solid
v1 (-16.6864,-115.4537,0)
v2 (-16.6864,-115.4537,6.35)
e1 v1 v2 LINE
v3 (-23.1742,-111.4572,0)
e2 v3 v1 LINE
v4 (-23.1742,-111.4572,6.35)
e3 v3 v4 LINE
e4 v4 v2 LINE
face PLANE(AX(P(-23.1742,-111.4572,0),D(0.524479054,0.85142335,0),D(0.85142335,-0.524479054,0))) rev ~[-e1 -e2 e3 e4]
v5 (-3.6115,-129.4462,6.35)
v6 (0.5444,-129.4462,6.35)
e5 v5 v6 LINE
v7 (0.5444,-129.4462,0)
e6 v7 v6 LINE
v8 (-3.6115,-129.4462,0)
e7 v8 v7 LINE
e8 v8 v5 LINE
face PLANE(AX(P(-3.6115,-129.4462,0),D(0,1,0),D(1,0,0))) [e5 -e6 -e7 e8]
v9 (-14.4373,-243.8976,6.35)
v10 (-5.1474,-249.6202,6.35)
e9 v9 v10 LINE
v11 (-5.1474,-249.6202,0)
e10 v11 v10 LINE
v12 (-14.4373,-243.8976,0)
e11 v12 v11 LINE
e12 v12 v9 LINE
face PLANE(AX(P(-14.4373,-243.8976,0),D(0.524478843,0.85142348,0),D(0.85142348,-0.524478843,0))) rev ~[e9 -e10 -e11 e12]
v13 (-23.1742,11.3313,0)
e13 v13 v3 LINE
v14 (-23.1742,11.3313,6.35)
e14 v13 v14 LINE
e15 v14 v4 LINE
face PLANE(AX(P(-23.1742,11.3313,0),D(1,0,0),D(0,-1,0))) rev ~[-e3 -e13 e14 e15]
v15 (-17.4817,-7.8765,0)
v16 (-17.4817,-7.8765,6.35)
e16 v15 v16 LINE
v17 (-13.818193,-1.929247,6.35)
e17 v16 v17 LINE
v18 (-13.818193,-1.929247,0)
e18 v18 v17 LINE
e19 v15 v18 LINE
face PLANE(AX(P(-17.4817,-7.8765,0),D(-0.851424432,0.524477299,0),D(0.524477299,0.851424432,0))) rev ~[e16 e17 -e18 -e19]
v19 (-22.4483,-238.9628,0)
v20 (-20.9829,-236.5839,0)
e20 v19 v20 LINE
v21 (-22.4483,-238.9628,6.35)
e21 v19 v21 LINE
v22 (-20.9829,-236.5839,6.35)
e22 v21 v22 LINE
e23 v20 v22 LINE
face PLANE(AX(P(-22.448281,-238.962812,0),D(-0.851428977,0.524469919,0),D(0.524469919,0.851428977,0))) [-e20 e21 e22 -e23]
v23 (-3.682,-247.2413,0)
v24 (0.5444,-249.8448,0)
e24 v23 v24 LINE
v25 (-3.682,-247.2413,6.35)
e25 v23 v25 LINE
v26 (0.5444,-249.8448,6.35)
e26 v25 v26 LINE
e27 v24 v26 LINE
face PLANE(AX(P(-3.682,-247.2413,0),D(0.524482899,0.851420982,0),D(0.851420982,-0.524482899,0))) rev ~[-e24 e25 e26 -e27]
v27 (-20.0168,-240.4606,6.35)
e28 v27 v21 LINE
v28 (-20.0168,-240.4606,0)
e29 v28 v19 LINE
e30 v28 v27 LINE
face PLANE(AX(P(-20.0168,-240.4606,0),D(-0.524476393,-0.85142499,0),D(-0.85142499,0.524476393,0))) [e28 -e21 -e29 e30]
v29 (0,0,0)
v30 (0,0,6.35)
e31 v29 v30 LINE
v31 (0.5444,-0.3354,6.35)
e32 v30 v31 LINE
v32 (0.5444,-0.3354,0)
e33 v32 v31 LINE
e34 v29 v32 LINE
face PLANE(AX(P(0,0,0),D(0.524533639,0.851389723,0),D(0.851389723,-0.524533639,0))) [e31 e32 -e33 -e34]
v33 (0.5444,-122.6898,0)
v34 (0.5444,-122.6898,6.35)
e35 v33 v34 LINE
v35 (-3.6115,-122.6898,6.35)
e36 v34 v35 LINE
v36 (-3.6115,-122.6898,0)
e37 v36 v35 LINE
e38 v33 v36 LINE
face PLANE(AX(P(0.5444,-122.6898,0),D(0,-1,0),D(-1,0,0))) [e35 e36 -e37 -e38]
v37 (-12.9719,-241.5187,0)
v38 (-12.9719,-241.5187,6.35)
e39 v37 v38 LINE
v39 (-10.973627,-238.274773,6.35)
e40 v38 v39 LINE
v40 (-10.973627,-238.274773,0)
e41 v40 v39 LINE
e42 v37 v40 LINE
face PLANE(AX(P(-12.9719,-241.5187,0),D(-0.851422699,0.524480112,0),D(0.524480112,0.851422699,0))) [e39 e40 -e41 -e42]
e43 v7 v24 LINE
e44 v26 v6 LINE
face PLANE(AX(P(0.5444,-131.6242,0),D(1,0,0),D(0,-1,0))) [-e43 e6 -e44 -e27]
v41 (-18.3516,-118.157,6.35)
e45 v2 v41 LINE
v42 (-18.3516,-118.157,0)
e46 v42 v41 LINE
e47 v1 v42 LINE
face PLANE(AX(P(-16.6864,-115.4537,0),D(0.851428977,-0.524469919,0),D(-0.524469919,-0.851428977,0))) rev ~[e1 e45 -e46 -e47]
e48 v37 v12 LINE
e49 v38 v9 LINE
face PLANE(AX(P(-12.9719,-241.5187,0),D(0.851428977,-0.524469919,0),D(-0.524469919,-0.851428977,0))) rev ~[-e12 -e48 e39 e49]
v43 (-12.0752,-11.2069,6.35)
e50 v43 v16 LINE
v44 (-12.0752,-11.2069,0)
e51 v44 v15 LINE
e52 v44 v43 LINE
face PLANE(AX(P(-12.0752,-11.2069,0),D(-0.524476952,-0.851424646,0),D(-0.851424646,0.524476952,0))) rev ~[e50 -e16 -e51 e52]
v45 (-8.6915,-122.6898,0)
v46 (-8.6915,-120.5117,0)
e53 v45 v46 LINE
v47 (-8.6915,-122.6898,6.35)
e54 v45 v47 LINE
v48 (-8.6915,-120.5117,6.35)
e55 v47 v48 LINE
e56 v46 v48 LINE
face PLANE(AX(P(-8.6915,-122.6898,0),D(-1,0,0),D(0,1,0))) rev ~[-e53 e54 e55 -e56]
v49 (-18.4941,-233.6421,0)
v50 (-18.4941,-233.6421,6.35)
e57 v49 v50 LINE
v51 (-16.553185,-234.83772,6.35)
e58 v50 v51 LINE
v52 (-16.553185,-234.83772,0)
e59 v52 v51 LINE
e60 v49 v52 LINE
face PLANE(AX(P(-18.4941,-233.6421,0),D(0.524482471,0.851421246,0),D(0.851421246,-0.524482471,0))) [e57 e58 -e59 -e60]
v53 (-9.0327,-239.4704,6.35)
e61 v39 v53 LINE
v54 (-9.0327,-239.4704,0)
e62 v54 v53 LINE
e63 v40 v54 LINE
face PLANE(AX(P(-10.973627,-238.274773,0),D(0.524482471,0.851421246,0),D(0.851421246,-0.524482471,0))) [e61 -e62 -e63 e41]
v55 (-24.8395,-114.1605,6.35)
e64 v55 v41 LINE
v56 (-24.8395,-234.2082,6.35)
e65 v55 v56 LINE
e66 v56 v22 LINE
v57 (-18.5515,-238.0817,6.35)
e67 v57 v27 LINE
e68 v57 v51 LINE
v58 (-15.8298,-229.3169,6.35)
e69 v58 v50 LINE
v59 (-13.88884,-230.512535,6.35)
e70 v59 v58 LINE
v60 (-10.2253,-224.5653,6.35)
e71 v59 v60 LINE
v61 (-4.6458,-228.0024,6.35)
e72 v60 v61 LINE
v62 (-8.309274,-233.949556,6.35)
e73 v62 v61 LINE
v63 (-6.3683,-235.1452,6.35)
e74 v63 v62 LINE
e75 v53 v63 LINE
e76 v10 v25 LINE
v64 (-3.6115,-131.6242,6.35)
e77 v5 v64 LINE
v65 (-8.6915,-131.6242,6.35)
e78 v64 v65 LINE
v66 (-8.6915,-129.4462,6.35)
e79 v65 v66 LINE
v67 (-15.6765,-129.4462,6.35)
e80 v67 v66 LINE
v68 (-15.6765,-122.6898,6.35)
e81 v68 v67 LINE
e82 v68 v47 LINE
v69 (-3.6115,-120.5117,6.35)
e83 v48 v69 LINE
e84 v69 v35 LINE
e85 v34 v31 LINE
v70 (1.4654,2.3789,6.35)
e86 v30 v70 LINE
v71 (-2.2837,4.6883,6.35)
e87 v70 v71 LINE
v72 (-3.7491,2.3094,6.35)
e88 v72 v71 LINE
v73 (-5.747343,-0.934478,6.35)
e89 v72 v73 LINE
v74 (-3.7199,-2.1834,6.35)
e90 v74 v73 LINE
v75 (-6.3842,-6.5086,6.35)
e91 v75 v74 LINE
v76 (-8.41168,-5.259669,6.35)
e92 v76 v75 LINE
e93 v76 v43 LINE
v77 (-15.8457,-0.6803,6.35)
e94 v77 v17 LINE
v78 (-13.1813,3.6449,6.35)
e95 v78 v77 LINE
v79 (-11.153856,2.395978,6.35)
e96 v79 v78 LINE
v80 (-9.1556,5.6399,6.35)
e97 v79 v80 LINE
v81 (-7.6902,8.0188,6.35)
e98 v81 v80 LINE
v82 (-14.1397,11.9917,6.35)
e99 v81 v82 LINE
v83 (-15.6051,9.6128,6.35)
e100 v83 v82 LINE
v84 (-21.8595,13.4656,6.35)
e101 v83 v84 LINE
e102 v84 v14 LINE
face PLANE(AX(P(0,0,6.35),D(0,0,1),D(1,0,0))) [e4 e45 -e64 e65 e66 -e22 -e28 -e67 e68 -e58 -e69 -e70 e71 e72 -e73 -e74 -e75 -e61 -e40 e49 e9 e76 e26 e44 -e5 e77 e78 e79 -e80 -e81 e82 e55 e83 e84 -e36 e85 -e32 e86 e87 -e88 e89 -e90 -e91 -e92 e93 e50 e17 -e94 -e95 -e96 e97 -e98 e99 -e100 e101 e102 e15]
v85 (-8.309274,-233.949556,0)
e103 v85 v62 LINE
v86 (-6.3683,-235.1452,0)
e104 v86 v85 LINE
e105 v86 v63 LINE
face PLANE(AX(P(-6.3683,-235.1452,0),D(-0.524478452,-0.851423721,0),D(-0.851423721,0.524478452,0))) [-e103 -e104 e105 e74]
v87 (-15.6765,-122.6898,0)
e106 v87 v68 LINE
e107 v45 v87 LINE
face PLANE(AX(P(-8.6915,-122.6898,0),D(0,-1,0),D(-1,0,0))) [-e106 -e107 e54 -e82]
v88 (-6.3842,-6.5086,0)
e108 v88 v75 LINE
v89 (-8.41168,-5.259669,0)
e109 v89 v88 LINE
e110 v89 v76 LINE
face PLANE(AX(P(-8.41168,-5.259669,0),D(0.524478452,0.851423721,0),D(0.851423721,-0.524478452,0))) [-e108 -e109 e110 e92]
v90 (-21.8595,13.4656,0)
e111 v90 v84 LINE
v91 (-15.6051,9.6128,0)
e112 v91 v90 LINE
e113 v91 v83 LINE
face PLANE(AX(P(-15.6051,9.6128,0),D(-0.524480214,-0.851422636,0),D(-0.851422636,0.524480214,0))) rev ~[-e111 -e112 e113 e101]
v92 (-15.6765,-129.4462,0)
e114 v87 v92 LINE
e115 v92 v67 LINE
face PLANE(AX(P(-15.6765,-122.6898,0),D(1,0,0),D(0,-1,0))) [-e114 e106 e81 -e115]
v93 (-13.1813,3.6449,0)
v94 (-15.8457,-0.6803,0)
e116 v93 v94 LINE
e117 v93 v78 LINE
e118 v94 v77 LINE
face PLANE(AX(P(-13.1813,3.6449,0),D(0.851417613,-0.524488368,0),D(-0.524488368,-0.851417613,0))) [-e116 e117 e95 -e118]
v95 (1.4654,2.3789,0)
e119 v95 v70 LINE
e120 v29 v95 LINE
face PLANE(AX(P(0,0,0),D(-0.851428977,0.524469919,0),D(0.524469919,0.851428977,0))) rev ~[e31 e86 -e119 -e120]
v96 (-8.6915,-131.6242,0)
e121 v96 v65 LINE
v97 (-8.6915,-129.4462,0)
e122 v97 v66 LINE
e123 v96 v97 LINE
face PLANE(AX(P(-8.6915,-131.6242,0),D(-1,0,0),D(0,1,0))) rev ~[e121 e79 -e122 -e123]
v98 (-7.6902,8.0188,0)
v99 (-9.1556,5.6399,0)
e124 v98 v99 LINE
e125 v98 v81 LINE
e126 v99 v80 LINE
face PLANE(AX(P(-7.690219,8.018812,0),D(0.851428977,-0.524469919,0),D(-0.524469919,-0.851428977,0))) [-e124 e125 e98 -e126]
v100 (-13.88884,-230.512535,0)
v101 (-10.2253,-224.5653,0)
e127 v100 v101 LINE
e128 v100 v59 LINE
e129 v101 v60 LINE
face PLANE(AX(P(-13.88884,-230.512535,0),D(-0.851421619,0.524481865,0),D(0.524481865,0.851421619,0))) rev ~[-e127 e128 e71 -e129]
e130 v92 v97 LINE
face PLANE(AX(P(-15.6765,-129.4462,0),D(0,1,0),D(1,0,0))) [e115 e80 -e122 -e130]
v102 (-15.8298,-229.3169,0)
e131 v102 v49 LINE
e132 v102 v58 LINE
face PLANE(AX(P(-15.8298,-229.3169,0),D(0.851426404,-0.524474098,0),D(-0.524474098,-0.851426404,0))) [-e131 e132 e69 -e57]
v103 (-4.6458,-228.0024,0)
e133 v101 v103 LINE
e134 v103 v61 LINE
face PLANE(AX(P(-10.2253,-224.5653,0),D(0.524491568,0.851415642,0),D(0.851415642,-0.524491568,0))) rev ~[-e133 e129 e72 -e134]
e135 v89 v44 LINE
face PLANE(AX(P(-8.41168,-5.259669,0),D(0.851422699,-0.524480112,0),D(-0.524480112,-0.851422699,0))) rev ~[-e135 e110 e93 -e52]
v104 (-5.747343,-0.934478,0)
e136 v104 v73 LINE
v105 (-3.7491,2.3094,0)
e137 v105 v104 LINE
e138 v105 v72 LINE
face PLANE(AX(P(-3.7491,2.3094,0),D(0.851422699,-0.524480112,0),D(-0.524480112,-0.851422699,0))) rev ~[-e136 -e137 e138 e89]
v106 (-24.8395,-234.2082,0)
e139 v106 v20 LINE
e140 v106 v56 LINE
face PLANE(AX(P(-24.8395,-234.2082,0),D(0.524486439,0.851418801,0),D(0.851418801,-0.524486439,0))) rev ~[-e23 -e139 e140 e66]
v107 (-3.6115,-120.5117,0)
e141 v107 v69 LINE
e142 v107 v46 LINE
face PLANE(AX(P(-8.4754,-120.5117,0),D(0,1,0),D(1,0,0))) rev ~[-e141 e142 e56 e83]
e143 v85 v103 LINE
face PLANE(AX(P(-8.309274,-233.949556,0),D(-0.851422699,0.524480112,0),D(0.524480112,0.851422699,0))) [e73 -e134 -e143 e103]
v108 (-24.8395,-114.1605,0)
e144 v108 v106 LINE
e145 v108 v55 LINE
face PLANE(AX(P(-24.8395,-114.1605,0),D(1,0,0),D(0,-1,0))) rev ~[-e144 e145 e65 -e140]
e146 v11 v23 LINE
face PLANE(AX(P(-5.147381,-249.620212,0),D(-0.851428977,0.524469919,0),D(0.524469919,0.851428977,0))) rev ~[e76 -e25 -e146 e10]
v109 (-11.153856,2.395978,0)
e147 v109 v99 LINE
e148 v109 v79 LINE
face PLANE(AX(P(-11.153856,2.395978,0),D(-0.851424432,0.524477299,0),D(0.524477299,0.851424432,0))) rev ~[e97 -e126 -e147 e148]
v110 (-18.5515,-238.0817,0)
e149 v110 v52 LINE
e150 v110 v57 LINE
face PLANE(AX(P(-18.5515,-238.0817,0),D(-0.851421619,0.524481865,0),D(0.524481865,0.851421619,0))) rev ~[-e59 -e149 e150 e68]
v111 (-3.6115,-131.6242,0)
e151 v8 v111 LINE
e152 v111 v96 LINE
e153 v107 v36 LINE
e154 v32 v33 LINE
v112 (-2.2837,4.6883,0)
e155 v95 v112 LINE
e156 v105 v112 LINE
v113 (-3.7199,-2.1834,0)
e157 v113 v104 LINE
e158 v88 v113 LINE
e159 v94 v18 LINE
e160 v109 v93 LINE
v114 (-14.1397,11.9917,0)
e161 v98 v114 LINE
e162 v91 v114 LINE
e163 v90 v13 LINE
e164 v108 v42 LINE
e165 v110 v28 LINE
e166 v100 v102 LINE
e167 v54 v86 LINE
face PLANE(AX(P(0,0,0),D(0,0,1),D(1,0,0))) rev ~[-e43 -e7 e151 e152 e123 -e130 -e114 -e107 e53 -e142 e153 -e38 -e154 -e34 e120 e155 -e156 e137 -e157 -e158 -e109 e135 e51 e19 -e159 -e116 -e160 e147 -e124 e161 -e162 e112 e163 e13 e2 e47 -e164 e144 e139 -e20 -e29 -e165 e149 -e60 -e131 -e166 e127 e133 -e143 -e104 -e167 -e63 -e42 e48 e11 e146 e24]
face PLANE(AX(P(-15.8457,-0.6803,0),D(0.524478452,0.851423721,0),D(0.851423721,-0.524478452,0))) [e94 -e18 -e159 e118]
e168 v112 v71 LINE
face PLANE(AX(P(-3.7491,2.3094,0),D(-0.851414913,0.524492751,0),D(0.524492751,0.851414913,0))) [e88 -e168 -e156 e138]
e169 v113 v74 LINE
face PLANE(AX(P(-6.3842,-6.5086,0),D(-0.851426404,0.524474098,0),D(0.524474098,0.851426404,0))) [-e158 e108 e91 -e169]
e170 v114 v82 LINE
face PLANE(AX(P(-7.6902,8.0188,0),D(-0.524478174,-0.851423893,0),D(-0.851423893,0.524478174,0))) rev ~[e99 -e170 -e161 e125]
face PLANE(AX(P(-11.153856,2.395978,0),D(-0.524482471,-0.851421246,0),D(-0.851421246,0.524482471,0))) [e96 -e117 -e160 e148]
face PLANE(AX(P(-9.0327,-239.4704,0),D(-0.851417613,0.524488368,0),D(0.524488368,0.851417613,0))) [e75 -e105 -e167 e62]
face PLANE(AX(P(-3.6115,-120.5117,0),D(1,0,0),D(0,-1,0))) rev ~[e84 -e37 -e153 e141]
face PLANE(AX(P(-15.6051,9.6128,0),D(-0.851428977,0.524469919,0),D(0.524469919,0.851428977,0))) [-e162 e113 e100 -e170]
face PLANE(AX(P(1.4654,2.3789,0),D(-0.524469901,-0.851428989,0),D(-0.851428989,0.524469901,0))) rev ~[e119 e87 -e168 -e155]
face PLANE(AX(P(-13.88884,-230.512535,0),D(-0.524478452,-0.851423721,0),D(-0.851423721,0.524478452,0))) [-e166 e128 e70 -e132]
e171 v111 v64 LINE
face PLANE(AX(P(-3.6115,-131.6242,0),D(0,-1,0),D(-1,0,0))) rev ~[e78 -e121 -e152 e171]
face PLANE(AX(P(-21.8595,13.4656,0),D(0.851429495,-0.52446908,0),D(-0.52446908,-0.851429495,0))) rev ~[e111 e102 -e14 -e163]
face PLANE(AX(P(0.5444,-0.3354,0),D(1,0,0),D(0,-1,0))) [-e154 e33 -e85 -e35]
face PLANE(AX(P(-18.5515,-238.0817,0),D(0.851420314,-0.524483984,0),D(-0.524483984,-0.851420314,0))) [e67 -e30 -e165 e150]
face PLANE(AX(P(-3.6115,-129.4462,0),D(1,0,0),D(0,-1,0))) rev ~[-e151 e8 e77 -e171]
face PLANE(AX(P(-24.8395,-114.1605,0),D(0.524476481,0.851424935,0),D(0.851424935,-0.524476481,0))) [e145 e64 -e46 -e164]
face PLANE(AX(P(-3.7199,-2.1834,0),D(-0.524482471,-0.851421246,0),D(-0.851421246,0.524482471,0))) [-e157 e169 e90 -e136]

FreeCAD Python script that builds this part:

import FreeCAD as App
import Part
import Sketcher
Q = App.Units.Quantity


def add_polygon(sketch, points):
    """Adds a closed chain of lines whose ends are joined by coincident constraints."""
    first, n = sketch.GeometryCount, len(points)
    for a, b in zip(points, points[1:] + points[:1]):
        sketch.addGeometry(Part.LineSegment(App.Vector(*a, 0), App.Vector(*b, 0)), False)
    for i in range(n):
        sketch.addConstraint(Sketcher.Constraint("Coincident", first + i, 2, first + (i + 1) % n, 1))

doc = App.newDocument("Part")
params = doc.addObject("Spreadsheet::Sheet", "Params")
for row, (alias, value) in enumerate([
    ("sketch1_width", "0.2 in"),
    ("sketch1_length", "0.3 in"),
    ("sketch1_length2", "0.2 in"),
    ("sketch1_length3", "0.125 in"),
    ("sketch1_length4", "0.11 in"),
    ("pad1_length", "0.25 in"),
], start=1):
    params.set(f"A{row}", alias)
    params.set(f"B{row}", "=" + value)
    params.setAlias(f"B{row}", alias)

body = doc.addObject("PartDesign::Body", "Body")

# Sketch on XY plane
sketch1 = body.newObject("Sketcher::SketchObject", "Sketch")
sketch1.AttachmentSupport = (doc.getObject("XY_Plane"), [""])
sketch1.MapMode = "FlatFace"
add_polygon(sketch1, [(-7.7, 8), (-14.1, 12), (-15.6, 9.6), (-21.9, 13.5), (-23.2, 11.3), (-23.2, -111.5), (-16.7, -115.5), (-18.4, -118.2), (-24.8, -114.2), (-24.8, -234.2), (-21, -236.6), (-22.4, -239), (-20, -240.5), (-18.6, -238.1), (-16.6, -234.8), (-18.5, -233.6), (-15.8, -229.3), (-13.9, -230.5), (-10.2, -224.6), (-4.6, -228), (-8.3, -233.9), (-6.4, -235.1), (-9, -239.5), (-11, -238.3), (-13, -241.5), (-14.4, -243.9), (-5.1, -249.6), (-3.7, -247.2), (0.5, -249.8), (0.5, -129.4), (-3.6, -129.4), (-3.6, -131.6), (-8.7, -131.6), (-8.7, -129.4), (-15.7, -129.4), (-15.7, -122.7), (-8.7, -122.7), (-8.7, -120.5), (-3.6, -120.5), (-3.6, -122.7), (0.5, -122.7), (0.5, -0.3), (0, 0), (1.5, 2.4), (-2.3, 4.7), (-3.7, 2.3), (-5.7, -0.9), (-3.7, -2.2), (-6.4, -6.5), (-8.4, -5.3), (-12.1, -11.2), (-17.5, -7.9), (-13.8, -1.9), (-15.8, -0.7), (-13.2, 3.6), (-11.2, 2.4), (-9.2, 5.6)])  # lines 0-56
sketch1.addConstraint([
    Sketcher.Constraint("Vertical", 4),
    Sketcher.Constraint("Vertical", 8),
    Sketcher.Constraint("Vertical", 28),
    Sketcher.Constraint("Horizontal", 29),
    Sketcher.Constraint("Vertical", 30),
    Sketcher.Constraint("Horizontal", 31),
    Sketcher.Constraint("Vertical", 32),
    Sketcher.Constraint("Horizontal", 33),
    Sketcher.Constraint("Vertical", 34),
    Sketcher.Constraint("Horizontal", 35),
    Sketcher.Constraint("Vertical", 36),
    Sketcher.Constraint("Horizontal", 37),
    Sketcher.Constraint("Vertical", 38),
    Sketcher.Constraint("Horizontal", 39),
    Sketcher.Constraint("Vertical", 40),
    Sketcher.Constraint("Coincident", 41, 2, -1, 1),
    Sketcher.Constraint("Perpendicular", 0, 1),
    Sketcher.Constraint("Perpendicular", 1, 2),
    Sketcher.Constraint("Perpendicular", 2, 3),
    Sketcher.Constraint("Perpendicular", 3, 5),
    Sketcher.Constraint("Perpendicular", 5, 6),
    Sketcher.Constraint("Perpendicular", 6, 7),
    Sketcher.Constraint("Parallel", 7, 9),
    Sketcher.Constraint("Perpendicular", 9, 10),
    Sketcher.Constraint("Perpendicular", 10, 11),
    Sketcher.Constraint("Perpendicular", 11, 12),
    Sketcher.Constraint("Parallel", 12, 13),
    Sketcher.Constraint("Perpendicular", 13, 14),
    Sketcher.Constraint("Perpendicular", 14, 15),
    Sketcher.Constraint("Perpendicular", 15, 16),
    Sketcher.Constraint("Perpendicular", 16, 17),
    Sketcher.Constraint("Perpendicular", 17, 18),
    Sketcher.Constraint("Perpendicular", 18, 19),
    Sketcher.Constraint("Perpendicular", 19, 20),
    Sketcher.Constraint("Perpendicular", 20, 21),
    Sketcher.Constraint("Perpendicular", 21, 22),
    Sketcher.Constraint("Perpendicular", 22, 23),
    Sketcher.Constraint("Parallel", 23, 24),
    Sketcher.Constraint("Perpendicular", 24, 25),
    Sketcher.Constraint("Perpendicular", 25, 26),
    Sketcher.Constraint("Perpendicular", 26, 27),
    Sketcher.Constraint("Parallel", 27, 41),
    Sketcher.Constraint("Perpendicular", 41, 42),
    Sketcher.Constraint("Perpendicular", 42, 43),
    Sketcher.Constraint("Perpendicular", 43, 44),
    Sketcher.Constraint("Parallel", 44, 45),
    Sketcher.Constraint("Perpendicular", 45, 46),
    Sketcher.Constraint("Perpendicular", 46, 47),
    Sketcher.Constraint("Perpendicular", 47, 48),
    Sketcher.Constraint("Perpendicular", 48, 49),
    Sketcher.Constraint("Perpendicular", 49, 50),
    Sketcher.Constraint("Perpendicular", 50, 51),
    Sketcher.Constraint("Perpendicular", 51, 52),
    Sketcher.Constraint("Perpendicular", 52, 53),
    Sketcher.Constraint("Perpendicular", 53, 54),
    Sketcher.Constraint("Perpendicular", 54, 55),
    Sketcher.Constraint("Parallel", 55, 56),
    Sketcher.Constraint("Horizontal", 29, 2, 32, 2),
    Sketcher.Constraint("Horizontal", 35, 2, 38, 2),
    Sketcher.Constraint("Vertical", 32, 2, 35, 2),
    Sketcher.Constraint("Vertical", 30, 2, 37, 2),
    Sketcher.Constraint("Vertical", 28, 2, 39, 2),
    Sketcher.Constraint("Equal", 32, 36),
    Sketcher.Constraint("Equal", 5, 7),
    Sketcher.Constraint("Equal", 1, 10),
    Sketcher.Constraint("Equal", 10, 12),
    Sketcher.Constraint("Equal", 14, 16),
    Sketcher.Constraint("Equal", 17, 19),
    Sketcher.Constraint("Equal", 16, 20),
    Sketcher.Constraint("Equal", 15, 21),
    Sketcher.Constraint("Equal", 20, 22),
    Sketcher.Constraint("Equal", 13, 23),
    Sketcher.Constraint("Equal", 12, 24),
    Sketcher.Constraint("Equal", 24, 26),
    Sketcher.Constraint("Equal", 26, 42),
    Sketcher.Constraint("Equal", 42, 44),
    Sketcher.Constraint("Equal", 23, 45),
    Sketcher.Constraint("Equal", 21, 47),
    Sketcher.Constraint("Equal", 46, 48),
    Sketcher.Constraint("Equal", 19, 49),
    Sketcher.Constraint("Equal", 49, 51),
    Sketcher.Constraint("Equal", 48, 52),
    Sketcher.Constraint("Equal", 47, 53),
    Sketcher.Constraint("Equal", 52, 54),
    Sketcher.Constraint("Equal", 45, 55),
    Sketcher.Constraint("Equal", 44, 56),
    Sketcher.Constraint("DistanceX", 31, 2, 31, 1, Q("0.2 in")),
    Sketcher.Constraint("Distance", 5, Q("0.3 in")),
    Sketcher.Constraint("Distance", 15, Q("0.2 in")),
    Sketcher.Constraint("Distance", 6, Q("0.125 in")),
    Sketcher.Constraint("Distance", 1, Q("0.11 in")),
    Sketcher.Constraint("Distance", 13, Q("0.15 in")),
    Sketcher.Constraint("Distance", 50, Q("0.25 in")),
    Sketcher.Constraint("DistanceX", 33, 2, 33, 1, Q("0.275 in")),
    Sketcher.Constraint("DistanceY", 34, 1, 34, 2, Q("0.266 in")),
    Sketcher.Constraint("DistanceY", 45, 2, 52, 2, Q("0.01 in")),
    Sketcher.Constraint("Distance", 17, Q("0.275 in")),
    Sketcher.Constraint("Distance", 18, Q("0.258 in")),
    Sketcher.Constraint("Distance", 46, Q("0.093748 in")),
    Sketcher.Constraint("DistanceY", 4, 2, 4, 1, Q("4.8342 in")),
    Sketcher.Constraint("DistanceY", 28, 1, 28, 2, Q("4.7401 in")),
    Sketcher.Constraint("DistanceY", 40, 1, 40, 2, Q("4.8171 in")),
    Sketcher.Constraint("DistanceX", 3, 2, 1, 2, Q("0.298 in")),
    Sketcher.Constraint("DistanceY", 3, 2, 0, 2, Q("0.026 in")),
    Sketcher.Constraint("DistanceX", 17, 2, 28, 2, Q("0.424 in")),
    Sketcher.Constraint("DistanceX", 29, 2, 29, 1, Q("4.156 mm")),
    Sketcher.Constraint("DistanceY", 30, 2, 30, 1, Q("2.178 mm")),
    Sketcher.Constraint("DistanceX", 2, 2, -1, 1, Q("0.8606 in")),
    Sketcher.Constraint("DistanceX", 9, 2, -1, 1, Q("0.8261 in")),
    Sketcher.Constraint("DistanceY", 12, 2, -1, 1, Q("9.3733 in")),
    Sketcher.Constraint("DistanceY", 14, 2, -1, 1, Q("9.1985 in")),
    Sketcher.Constraint("DistanceY", 26, 2, -1, 1, Q("9.7339 in")),
    Sketcher.Constraint("DistanceX", 43, 2, -1, 1, Q("0.0899 in")),
])
sketch1.setExpression("Constraints[143]", "Params.sketch1_width")
sketch1.setExpression("Constraints[144]", "Params.sketch1_length")
sketch1.setExpression("Constraints[145]", "Params.sketch1_length2")
sketch1.setExpression("Constraints[146]", "Params.sketch1_length3")
sketch1.setExpression("Constraints[147]", "Params.sketch1_length4")
pad1 = body.newObject("PartDesign::Pad", "Pad")
pad1.Profile = sketch1
pad1.setExpression("Length", "Params.pad1_length")

doc.recompute()
